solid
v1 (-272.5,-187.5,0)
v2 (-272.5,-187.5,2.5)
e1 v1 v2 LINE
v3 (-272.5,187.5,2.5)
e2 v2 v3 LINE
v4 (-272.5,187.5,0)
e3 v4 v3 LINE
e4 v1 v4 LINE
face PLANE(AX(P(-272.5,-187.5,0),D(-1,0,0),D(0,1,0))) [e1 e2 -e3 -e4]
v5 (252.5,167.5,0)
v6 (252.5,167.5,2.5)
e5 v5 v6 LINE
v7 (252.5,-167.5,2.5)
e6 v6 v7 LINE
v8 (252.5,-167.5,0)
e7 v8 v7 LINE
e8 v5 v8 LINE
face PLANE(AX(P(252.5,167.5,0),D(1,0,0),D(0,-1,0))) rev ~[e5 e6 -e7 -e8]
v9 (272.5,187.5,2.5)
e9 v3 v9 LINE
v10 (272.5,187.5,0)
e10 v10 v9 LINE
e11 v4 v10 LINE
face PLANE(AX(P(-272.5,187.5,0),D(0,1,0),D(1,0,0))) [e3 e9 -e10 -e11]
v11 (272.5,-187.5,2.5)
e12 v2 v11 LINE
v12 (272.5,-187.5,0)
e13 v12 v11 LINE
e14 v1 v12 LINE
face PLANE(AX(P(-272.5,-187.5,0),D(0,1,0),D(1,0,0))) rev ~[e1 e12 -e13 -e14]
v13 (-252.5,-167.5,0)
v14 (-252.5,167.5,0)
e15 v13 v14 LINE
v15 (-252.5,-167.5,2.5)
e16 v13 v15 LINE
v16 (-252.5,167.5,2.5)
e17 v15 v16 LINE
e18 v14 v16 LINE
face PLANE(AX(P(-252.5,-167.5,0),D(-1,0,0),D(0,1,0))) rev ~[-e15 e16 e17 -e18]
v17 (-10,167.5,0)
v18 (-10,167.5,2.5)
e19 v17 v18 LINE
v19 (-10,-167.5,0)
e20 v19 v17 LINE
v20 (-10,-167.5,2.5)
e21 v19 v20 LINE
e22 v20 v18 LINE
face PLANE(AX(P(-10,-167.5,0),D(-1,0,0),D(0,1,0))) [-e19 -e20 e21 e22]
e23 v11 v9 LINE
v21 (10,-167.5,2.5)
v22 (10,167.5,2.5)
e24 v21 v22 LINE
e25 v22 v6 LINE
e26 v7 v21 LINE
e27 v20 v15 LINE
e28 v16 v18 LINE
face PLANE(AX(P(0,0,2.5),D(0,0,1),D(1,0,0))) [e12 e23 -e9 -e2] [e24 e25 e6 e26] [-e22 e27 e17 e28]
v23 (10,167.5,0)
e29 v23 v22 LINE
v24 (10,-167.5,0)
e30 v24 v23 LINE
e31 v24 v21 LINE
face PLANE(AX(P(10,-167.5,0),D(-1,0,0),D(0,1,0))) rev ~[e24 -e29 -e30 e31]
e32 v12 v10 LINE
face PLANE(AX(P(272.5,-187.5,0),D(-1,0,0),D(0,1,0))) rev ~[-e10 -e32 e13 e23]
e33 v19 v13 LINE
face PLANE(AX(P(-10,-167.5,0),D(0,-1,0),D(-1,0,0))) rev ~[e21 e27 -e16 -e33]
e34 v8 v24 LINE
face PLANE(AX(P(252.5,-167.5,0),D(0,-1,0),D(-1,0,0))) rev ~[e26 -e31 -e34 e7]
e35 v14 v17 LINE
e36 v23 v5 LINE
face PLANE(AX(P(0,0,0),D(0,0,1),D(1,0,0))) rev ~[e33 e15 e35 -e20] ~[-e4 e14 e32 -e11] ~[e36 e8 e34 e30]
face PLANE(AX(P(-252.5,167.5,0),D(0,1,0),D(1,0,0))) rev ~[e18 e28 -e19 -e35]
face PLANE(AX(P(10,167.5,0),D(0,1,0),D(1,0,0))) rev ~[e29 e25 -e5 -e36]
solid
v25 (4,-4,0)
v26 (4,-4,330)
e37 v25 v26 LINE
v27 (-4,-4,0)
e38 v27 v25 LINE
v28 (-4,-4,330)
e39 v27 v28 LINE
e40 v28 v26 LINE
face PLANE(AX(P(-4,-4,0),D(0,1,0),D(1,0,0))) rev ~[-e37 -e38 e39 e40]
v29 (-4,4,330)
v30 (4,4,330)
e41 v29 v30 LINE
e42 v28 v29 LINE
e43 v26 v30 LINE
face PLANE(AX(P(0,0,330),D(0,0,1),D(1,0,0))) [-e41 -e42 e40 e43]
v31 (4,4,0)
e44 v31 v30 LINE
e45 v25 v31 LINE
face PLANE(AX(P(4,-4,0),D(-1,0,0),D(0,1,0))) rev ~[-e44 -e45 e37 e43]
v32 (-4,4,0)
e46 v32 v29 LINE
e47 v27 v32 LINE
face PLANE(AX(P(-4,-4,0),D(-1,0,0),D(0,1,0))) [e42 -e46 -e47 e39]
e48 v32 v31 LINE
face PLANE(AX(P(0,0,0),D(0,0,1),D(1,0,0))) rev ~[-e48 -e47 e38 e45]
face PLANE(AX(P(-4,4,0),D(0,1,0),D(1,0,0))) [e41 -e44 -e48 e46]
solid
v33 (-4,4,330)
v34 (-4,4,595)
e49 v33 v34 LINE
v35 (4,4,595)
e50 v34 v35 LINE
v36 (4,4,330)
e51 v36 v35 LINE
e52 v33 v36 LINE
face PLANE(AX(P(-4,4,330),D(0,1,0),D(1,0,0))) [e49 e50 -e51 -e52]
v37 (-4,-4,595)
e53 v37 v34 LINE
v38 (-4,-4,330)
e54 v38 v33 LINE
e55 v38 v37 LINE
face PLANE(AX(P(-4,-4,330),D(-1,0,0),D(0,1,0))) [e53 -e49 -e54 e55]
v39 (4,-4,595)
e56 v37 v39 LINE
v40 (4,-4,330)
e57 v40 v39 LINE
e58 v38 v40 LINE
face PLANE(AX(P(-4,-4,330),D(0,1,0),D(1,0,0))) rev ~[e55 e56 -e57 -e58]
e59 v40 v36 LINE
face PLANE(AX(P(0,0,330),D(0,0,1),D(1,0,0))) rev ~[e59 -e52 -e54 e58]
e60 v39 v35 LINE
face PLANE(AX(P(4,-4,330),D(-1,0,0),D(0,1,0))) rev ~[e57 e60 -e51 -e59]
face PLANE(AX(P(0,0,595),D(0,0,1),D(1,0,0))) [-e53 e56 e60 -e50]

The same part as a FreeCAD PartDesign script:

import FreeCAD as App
import Part
import Sketcher

V = App.Vector
Q = App.Units.Quantity


def add_polygon(sketch, points):
    """Adds a closed chain of lines whose ends are joined by coincident constraints."""
    first, n = sketch.GeometryCount, len(points)
    for a, b in zip(points, points[1:] + points[:1]):
        sketch.addGeometry(Part.LineSegment(App.Vector(*a, 0), App.Vector(*b, 0)), False)
    for i in range(n):
        sketch.addConstraint(Sketcher.Constraint("Coincident", first + i, 2, first + (i + 1) % n, 1))

doc = App.newDocument("Part")
params = doc.addObject("Spreadsheet::Sheet", "Params")
for row, (alias, value) in enumerate([
    ("sketch1_width", "545 mm"),
    ("sketch1_height", "375 mm"),
    ("sketch1_height2", "335 mm"),
    ("sketch1_width2", "242.5 mm"),
    ("pad1_length", "2.5 mm"),
    ("sketch2_width", "8 mm"),
    ("pad2_length", "330 mm"),
    ("sketch3_width", "8 mm"),
    ("pad3_length", "265 mm"),
], start=1):
    params.set(f"A{row}", alias)
    params.set(f"B{row}", "=" + value)
    params.setAlias(f"B{row}", alias)

body = doc.addObject("PartDesign::Body", "Body")

sketch1 = body.newObject("Sketcher::SketchObject", "Sketch")
sketch1.AttachmentSupport = (doc.getObject("XY_Plane"), [""])
sketch1.MapMode = "FlatFace"
add_polygon(sketch1, [(-272, 188), (-272, -188), (272, -188), (272, 188)])
add_polygon(sketch1, [(-252, 168), (-10, 168), (-10, -168), (-252, -168)])
add_polygon(sketch1, [(10, 168), (252, 168), (252, -168), (10, -168)])
sketch1.addConstraint([
    Sketcher.Constraint("Vertical", 0),
    Sketcher.Constraint("Horizontal", 1),
    Sketcher.Constraint("Vertical", 2),
    Sketcher.Constraint("Horizontal", 3),
    Sketcher.Constraint("Horizontal", 4),
    Sketcher.Constraint("Vertical", 5),
    Sketcher.Constraint("Horizontal", 6),
    Sketcher.Constraint("Vertical", 7),
    Sketcher.Constraint("Horizontal", 8),
    Sketcher.Constraint("Vertical", 9),
    Sketcher.Constraint("Horizontal", 10),
    Sketcher.Constraint("Vertical", 11),
    Sketcher.Constraint("Symmetric", 0, 2, 2, 2, -1, 1),
    Sketcher.Constraint("Symmetric", 6, 2, 8, 2, -1, 1),
    Sketcher.Constraint("Symmetric", 4, 2, 10, 2, -1, 1),
    Sketcher.Constraint("Horizontal", 7, 2, 8, 2),
    Sketcher.Constraint("DistanceX", 1, 1, 1, 2, Q("545 mm")),
    Sketcher.Constraint("DistanceY", 0, 2, 0, 1, Q("375 mm")),
    Sketcher.Constraint("DistanceY", 5, 2, 5, 1, Q("335 mm")),
    Sketcher.Constraint("DistanceX", 4, 1, 4, 2, Q("242.5 mm")),
    Sketcher.Constraint("DistanceX", 4, 2, -1, 1, Q("10 mm")),
])
sketch1.setExpression("Constraints[28]", "Params.sketch1_width")
sketch1.setExpression("Constraints[29]", "Params.sketch1_height")
sketch1.setExpression("Constraints[30]", "Params.sketch1_height2")
sketch1.setExpression("Constraints[31]", "Params.sketch1_width2")
pad1 = body.newObject("PartDesign::Pad", "Pad")
pad1.Profile = sketch1
pad1.setExpression("Length", "Params.pad1_length")
body2 = doc.addObject("PartDesign::Body", "Body001")

sketch2 = body2.newObject("Sketcher::SketchObject", "Sketch001")
sketch2.AttachmentSupport = (doc.getObject("XY_Plane001"), [""])
sketch2.MapMode = "FlatFace"
add_polygon(sketch2, [(-4, 4), (-4, -4), (4, -4), (4, 4)])
sketch2.addConstraint([
    Sketcher.Constraint("Vertical", 0),
    Sketcher.Constraint("Horizontal", 1),
    Sketcher.Constraint("Vertical", 2),
    Sketcher.Constraint("Horizontal", 3),
    Sketcher.Constraint("Symmetric", 0, 2, 2, 2, -1, 1),
    Sketcher.Constraint("Equal", 3, 0),
    Sketcher.Constraint("DistanceX", 1, 1, 1, 2, Q("8 mm")),
])
sketch2.setExpression("Constraints[10]", "Params.sketch2_width")
pad2 = body2.newObject("PartDesign::Pad", "Pad001")
pad2.Profile = sketch2
pad2.setExpression("Length", "Params.pad2_length")
body3 = doc.addObject("PartDesign::Body", "Body002")

sketch3 = body3.newObject("Sketcher::SketchObject", "Sketch002")
sketch3.AttachmentSupport = (doc.getObject("XY_Plane002"), [""])
sketch3.MapMode = "FlatFace"
sketch3.AttachmentOffset = App.Placement(V(0, 0, 330), App.Rotation())
add_polygon(sketch3, [(-4, 4), (-4, -4), (4, -4), (4, 4)])
sketch3.addConstraint([
    Sketcher.Constraint("Vertical", 0),
    Sketcher.Constraint("Horizontal", 1),
    Sketcher.Constraint("Vertical", 2),
    Sketcher.Constraint("Horizontal", 3),
    Sketcher.Constraint("Symmetric", 0, 2, 2, 2, -1, 1),
    Sketcher.Constraint("Equal", 3, 0),
    Sketcher.Constraint("DistanceX", 1, 1, 1, 2, Q("8 mm")),
])
sketch3.setExpression("Constraints[10]", "Params.sketch3_width")
pad3 = body3.newObject("PartDesign::Pad", "Pad002")
pad3.Profile = sketch3
pad3.setExpression("Length", "Params.pad3_length")

doc.recompute()
